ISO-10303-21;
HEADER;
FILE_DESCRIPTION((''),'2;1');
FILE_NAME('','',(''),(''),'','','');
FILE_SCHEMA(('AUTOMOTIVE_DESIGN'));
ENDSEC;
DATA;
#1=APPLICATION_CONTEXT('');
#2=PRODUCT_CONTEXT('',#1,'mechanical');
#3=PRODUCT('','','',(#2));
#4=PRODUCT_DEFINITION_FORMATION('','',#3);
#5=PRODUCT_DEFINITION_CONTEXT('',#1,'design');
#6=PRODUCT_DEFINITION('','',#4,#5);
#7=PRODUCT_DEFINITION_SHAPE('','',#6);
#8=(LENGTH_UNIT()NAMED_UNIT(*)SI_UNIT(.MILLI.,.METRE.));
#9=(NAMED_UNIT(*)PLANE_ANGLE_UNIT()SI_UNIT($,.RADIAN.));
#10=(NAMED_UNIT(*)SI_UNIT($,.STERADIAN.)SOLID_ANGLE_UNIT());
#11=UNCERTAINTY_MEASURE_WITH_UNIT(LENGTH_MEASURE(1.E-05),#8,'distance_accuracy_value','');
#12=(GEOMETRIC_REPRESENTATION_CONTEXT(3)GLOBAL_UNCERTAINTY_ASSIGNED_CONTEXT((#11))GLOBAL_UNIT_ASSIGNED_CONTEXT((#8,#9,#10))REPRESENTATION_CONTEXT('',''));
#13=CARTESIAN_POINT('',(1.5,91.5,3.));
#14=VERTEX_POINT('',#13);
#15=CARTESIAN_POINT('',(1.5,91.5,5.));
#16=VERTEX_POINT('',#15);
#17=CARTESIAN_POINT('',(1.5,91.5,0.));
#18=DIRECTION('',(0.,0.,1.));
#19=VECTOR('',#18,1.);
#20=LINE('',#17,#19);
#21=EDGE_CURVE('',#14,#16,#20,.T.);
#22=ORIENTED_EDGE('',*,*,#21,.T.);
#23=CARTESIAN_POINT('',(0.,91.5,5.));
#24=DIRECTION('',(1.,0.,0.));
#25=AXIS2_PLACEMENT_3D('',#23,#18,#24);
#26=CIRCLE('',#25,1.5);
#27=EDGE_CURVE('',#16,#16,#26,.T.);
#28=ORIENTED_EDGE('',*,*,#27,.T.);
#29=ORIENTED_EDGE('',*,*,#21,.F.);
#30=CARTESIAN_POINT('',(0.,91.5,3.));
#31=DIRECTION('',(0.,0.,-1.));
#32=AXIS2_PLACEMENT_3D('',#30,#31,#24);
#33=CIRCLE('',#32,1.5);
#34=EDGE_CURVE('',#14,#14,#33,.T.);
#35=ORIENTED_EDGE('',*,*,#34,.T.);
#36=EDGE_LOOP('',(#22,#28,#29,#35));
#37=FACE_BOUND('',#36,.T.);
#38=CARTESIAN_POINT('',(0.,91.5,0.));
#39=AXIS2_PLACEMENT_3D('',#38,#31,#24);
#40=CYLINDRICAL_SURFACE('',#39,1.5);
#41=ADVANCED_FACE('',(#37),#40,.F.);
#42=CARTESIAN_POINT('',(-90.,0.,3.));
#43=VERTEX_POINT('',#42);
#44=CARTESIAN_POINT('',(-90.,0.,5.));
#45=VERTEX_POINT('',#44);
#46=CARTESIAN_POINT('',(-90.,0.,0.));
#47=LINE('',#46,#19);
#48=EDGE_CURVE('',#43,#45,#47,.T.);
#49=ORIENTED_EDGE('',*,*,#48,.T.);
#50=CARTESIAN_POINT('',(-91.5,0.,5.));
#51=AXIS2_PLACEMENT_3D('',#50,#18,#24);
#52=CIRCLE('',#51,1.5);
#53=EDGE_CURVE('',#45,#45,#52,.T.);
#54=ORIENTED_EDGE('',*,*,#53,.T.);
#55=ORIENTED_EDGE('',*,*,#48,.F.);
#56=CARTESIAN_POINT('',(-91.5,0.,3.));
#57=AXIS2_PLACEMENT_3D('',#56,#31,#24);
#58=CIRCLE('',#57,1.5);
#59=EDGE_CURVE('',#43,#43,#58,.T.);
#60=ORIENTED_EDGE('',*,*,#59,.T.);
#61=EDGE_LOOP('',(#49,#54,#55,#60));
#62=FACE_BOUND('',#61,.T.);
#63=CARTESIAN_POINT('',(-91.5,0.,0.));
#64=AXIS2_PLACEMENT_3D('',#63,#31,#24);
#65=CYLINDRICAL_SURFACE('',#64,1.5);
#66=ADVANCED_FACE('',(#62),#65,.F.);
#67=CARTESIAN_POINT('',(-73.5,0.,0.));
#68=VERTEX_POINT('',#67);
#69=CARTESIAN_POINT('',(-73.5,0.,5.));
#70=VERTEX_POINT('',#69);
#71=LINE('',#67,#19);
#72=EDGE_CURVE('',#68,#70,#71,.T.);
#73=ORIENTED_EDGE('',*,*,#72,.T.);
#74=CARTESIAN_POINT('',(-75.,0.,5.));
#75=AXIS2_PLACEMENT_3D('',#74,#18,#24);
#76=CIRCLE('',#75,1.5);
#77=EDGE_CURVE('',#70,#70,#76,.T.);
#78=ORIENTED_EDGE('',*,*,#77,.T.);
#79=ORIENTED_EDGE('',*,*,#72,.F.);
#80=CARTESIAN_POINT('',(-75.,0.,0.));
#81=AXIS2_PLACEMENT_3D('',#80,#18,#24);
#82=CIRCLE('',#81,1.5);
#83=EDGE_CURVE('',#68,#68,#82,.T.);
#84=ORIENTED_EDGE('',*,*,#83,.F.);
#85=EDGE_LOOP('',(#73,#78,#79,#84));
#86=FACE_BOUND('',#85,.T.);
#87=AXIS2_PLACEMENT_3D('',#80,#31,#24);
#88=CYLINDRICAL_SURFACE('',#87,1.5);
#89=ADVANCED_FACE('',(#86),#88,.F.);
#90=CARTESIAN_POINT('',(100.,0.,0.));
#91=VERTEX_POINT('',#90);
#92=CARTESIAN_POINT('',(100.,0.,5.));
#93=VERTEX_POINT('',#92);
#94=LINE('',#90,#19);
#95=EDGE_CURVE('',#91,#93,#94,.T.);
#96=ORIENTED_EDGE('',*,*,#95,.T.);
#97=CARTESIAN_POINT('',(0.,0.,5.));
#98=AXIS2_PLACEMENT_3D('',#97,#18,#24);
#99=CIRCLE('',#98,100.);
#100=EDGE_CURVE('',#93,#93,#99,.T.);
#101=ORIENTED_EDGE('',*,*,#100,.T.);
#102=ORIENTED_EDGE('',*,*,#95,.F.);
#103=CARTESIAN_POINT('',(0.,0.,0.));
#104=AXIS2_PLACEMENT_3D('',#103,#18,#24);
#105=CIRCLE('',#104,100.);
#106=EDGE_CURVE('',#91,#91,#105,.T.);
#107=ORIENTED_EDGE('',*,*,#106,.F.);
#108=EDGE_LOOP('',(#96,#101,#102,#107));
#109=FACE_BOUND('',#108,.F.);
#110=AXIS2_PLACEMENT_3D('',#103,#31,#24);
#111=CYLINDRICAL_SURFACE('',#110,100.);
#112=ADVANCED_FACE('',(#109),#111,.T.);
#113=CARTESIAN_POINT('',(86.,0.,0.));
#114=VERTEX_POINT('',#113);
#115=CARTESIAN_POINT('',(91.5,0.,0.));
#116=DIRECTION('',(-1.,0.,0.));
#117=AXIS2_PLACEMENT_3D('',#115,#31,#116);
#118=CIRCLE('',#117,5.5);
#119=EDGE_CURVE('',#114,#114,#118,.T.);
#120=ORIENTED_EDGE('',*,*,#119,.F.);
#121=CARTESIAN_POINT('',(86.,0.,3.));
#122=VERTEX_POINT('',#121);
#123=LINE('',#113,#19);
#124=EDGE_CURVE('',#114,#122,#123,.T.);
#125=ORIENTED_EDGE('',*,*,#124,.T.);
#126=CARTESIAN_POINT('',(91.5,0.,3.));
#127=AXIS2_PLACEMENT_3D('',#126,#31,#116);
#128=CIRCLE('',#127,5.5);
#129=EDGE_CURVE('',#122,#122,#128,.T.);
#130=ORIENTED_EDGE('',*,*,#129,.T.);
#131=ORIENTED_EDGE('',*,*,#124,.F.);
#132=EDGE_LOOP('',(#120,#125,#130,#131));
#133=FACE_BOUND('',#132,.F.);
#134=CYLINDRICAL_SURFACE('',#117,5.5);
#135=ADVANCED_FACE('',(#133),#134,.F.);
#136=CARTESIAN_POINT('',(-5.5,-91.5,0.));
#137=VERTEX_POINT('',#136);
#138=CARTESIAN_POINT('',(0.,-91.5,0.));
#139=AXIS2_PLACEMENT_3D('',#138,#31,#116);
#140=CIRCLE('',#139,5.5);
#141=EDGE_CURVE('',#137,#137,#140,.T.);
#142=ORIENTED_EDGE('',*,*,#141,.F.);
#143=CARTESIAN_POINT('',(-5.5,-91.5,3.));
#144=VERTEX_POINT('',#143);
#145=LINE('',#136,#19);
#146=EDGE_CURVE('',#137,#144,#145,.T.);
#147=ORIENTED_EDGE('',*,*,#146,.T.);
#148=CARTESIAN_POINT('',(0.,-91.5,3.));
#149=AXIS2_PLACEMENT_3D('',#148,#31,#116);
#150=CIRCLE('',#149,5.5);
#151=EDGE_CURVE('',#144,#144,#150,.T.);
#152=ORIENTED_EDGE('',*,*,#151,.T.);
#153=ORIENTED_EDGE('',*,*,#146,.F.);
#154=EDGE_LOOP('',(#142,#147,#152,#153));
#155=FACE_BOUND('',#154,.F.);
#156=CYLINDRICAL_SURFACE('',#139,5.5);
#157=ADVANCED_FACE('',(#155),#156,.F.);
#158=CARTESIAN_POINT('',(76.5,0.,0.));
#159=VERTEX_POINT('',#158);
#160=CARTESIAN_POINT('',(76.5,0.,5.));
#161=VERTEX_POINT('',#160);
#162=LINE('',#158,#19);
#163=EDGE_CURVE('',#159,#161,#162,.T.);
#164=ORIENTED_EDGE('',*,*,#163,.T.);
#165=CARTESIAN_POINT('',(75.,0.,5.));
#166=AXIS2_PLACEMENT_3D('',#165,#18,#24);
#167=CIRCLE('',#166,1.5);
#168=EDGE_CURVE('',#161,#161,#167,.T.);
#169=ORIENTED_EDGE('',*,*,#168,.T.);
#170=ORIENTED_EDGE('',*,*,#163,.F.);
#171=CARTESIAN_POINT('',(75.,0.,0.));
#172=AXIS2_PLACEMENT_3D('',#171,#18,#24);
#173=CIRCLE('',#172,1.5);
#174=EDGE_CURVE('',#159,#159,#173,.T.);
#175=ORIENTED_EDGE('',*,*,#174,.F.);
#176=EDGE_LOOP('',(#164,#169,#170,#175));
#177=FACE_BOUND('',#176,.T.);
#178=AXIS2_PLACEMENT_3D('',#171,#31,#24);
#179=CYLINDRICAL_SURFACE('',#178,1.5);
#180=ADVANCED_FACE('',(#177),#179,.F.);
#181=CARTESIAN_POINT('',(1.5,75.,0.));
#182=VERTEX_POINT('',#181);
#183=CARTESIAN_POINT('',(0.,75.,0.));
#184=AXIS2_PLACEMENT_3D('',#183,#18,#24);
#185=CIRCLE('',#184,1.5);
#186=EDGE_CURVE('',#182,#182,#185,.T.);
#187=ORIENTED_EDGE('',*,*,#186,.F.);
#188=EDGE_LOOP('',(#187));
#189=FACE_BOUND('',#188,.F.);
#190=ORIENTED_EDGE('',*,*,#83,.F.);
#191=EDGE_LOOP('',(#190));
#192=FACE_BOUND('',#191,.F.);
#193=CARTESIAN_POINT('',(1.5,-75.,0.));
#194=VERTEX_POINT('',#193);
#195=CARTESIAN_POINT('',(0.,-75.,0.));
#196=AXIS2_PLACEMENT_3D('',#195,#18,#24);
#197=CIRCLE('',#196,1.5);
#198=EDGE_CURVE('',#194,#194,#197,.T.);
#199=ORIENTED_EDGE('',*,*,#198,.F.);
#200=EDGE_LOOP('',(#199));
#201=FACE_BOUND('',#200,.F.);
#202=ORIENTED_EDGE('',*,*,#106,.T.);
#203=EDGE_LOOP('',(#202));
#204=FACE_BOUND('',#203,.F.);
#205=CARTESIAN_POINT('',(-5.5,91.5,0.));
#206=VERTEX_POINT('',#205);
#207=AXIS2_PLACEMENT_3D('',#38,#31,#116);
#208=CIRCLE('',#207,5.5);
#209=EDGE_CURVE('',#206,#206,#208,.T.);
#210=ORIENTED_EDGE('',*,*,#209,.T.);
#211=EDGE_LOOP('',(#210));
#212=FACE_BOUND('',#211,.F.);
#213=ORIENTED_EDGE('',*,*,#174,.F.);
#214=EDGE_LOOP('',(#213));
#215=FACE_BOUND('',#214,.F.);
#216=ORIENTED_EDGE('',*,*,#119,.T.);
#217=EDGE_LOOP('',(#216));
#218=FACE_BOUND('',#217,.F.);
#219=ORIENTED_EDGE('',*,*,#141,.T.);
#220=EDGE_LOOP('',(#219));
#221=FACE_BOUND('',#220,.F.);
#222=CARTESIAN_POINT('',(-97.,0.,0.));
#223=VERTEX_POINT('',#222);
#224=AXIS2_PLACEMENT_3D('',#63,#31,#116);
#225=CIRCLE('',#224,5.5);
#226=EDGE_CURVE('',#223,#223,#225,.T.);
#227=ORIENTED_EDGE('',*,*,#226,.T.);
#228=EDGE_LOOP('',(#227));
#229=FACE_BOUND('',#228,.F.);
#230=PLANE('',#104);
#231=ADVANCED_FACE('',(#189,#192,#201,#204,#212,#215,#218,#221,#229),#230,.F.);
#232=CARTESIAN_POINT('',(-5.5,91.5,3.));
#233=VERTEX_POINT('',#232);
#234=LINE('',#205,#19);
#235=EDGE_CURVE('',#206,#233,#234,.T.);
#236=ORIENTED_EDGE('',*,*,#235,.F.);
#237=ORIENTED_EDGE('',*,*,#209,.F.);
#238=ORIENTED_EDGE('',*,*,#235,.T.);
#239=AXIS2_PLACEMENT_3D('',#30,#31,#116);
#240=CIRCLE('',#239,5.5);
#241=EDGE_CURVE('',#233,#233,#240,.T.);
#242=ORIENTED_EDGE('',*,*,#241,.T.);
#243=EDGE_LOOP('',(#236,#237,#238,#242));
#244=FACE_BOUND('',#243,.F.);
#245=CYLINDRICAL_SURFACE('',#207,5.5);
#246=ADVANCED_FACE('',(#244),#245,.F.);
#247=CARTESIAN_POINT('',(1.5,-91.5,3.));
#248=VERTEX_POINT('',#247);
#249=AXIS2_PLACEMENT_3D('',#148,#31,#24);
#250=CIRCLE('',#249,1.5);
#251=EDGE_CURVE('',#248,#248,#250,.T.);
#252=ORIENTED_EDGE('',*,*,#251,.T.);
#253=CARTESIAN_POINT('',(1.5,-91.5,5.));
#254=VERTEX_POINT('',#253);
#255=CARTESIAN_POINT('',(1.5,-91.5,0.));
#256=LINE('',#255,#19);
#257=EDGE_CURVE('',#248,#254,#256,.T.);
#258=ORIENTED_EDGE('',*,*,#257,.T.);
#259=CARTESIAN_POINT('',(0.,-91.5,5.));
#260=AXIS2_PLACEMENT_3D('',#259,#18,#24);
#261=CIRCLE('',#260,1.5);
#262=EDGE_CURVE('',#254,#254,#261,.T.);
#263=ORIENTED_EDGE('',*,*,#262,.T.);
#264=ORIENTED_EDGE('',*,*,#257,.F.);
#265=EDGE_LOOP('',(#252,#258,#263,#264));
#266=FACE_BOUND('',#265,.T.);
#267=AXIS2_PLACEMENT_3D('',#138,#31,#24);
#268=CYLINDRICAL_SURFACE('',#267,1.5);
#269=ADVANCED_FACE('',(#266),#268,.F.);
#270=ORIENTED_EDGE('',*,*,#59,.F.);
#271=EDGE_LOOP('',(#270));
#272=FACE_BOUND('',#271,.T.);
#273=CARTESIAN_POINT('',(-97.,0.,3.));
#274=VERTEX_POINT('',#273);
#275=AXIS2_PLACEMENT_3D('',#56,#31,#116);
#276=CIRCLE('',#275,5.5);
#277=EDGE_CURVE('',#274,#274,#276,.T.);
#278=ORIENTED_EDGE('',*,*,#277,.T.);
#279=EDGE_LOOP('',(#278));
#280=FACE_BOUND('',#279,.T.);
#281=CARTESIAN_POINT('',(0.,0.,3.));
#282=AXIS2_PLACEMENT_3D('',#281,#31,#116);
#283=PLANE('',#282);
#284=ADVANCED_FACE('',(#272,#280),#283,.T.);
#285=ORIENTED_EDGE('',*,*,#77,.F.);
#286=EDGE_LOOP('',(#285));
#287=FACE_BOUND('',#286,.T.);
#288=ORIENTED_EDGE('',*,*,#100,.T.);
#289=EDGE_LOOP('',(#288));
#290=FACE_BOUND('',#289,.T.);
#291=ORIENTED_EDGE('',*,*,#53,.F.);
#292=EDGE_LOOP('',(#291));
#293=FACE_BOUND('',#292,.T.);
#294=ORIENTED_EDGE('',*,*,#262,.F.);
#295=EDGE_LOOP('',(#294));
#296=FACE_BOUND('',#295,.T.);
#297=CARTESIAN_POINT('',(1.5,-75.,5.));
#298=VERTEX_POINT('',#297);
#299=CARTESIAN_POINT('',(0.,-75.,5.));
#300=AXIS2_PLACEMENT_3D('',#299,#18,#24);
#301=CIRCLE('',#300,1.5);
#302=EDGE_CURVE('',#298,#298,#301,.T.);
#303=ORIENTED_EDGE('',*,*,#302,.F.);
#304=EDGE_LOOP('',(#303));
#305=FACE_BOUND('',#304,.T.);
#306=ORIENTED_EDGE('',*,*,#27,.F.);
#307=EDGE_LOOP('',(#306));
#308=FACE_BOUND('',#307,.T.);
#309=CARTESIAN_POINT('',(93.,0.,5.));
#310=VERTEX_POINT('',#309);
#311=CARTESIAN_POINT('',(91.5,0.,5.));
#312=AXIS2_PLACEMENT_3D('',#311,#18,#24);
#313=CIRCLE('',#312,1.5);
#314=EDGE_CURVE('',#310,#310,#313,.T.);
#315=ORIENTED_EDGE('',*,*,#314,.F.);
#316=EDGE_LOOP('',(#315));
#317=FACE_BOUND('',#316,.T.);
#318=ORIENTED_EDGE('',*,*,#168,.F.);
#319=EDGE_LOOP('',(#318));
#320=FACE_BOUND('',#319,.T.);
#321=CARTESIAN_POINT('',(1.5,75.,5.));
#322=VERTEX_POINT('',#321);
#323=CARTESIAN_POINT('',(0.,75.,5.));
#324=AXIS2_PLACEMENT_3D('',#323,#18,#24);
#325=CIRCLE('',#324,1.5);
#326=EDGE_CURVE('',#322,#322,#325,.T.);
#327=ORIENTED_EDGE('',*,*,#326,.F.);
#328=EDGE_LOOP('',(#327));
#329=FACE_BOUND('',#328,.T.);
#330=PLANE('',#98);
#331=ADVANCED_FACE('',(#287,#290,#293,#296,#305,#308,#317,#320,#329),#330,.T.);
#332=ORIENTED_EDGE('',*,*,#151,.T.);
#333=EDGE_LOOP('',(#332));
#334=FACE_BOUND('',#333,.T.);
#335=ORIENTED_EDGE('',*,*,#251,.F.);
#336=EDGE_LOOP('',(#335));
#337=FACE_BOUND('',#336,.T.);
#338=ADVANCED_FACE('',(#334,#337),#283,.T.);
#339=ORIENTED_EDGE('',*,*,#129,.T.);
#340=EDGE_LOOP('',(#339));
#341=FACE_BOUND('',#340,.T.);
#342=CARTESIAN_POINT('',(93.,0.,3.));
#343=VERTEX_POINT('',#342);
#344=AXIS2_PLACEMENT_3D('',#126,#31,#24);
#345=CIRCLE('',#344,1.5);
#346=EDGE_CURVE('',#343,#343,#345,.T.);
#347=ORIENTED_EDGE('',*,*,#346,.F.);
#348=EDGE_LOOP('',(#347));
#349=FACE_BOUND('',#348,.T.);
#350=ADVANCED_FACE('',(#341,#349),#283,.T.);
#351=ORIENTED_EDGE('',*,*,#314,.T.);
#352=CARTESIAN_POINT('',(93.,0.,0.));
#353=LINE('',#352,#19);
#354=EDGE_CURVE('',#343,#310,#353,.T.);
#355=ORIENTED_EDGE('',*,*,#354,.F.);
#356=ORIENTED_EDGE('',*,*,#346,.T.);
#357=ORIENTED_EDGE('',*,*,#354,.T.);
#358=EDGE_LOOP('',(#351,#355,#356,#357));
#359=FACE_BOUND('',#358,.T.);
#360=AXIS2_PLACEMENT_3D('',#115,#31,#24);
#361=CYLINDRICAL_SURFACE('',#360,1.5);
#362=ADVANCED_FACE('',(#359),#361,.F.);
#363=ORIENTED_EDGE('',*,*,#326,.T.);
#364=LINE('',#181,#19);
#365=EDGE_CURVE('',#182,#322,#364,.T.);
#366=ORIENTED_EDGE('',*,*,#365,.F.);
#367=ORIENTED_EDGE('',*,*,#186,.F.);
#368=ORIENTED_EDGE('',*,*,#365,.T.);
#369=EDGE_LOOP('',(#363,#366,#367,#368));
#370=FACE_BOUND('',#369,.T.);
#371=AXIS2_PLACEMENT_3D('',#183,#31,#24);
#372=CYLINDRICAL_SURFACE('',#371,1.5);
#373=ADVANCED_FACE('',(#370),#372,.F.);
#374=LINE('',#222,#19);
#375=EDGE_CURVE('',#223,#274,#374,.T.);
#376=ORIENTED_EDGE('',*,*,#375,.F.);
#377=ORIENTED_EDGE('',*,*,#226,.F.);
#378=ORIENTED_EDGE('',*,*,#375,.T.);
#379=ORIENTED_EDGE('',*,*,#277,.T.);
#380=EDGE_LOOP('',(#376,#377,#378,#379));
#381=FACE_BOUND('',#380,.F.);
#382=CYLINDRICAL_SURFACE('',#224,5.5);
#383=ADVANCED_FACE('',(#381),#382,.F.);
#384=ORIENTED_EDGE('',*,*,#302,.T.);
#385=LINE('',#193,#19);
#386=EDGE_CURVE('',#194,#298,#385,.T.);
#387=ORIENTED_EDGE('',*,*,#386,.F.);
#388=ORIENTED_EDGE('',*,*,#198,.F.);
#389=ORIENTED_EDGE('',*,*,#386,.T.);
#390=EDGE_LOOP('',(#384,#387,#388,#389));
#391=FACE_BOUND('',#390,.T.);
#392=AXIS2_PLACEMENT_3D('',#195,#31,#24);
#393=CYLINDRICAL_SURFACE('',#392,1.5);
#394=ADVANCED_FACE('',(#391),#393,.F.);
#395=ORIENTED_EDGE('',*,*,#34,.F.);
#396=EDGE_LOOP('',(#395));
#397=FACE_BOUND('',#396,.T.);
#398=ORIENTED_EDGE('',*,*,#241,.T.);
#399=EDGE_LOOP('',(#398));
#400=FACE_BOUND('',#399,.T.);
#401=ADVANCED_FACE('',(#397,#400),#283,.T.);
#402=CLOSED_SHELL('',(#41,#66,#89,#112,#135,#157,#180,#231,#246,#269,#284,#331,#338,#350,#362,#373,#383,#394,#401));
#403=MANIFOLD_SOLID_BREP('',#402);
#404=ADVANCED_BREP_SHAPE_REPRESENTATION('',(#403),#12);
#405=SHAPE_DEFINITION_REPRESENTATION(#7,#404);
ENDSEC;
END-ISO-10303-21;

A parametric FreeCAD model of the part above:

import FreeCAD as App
import Part
import Sketcher
Q = App.Units.Quantity

doc = App.newDocument("Part")
params = doc.addObject("Spreadsheet::Sheet", "Params")
for row, (alias, value) in enumerate([
    ("sketch1_diameter", "200 mm"),
    ("sketch1_diameter2", "3 mm"),
    ("pad1_length", "5 mm"),
    ("sketch2_diameter", "11 mm"),
    ("pocket1_length", "3 mm"),
], start=1):
    params.set(f"A{row}", alias)
    params.set(f"B{row}", "=" + value)
    params.setAlias(f"B{row}", alias)

body = doc.addObject("PartDesign::Body", "Body")

sketch1 = doc.addObject("Sketcher::SketchObject", "Sketch")
body.addObject(sketch1)
sketch1.AttachmentSupport = (doc.XY_Plane, [""])
sketch1.MapMode = "FlatFace"
sketch1.addGeometry([
    Part.Circle(App.Vector(0, 0, 0), App.Vector(0, 0, 1), 100),
    Part.Circle(App.Vector(0, -91.5, 0), App.Vector(0, 0, 1), 1.5),
    Part.Circle(App.Vector(0, -75, 0), App.Vector(0, 0, 1), 1.5),
    Part.Circle(App.Vector(-91.5, 0, 0), App.Vector(0, 0, 1), 1.5),
    Part.Circle(App.Vector(-75, 0, 0), App.Vector(0, 0, 1), 1.5),
    Part.Circle(App.Vector(75, 0, 0), App.Vector(0, 0, 1), 1.5),
    Part.Circle(App.Vector(91.5, 0, 0), App.Vector(0, 0, 1), 1.5),
    Part.Circle(App.Vector(0, 75, 0), App.Vector(0, 0, 1), 1.5),
    Part.Circle(App.Vector(0, 91.5, 0), App.Vector(0, 0, 1), 1.5),
], False)
sketch1.addConstraint([
    Sketcher.Constraint("Coincident", 0, 3, -1, 1),
    Sketcher.Constraint("Equal", 1, 2),
    Sketcher.Constraint("Equal", 2, 3),
    Sketcher.Constraint("Equal", 3, 4),
    Sketcher.Constraint("Equal", 4, 5),
    Sketcher.Constraint("Equal", 5, 6),
    Sketcher.Constraint("Equal", 6, 7),
    Sketcher.Constraint("Equal", 7, 8),
    Sketcher.Constraint("Symmetric", 4, 3, 5, 3, -1, 1),
    Sketcher.Constraint("Symmetric", 3, 3, 6, 3, -1, 1),
    Sketcher.Constraint("Symmetric", 2, 3, 7, 3, -1, 1),
    Sketcher.Constraint("Symmetric", 1, 3, 8, 3, -1, 1),
    Sketcher.Constraint("PointOnObject", 1, 3, -2),
    Sketcher.Constraint("PointOnObject", 2, 3, -2),
    Sketcher.Constraint("PointOnObject", 3, 3, -1),
    Sketcher.Constraint("PointOnObject", 4, 3, -1),
    Sketcher.Constraint("Diameter", 0, Q("200 mm")),
    Sketcher.Constraint("Diameter", 1, Q("3 mm")),
    Sketcher.Constraint("DistanceY", 2, 3, -1, 1, Q("75 mm")),
    Sketcher.Constraint("DistanceX", 4, 3, -1, 1, Q("75 mm")),
    Sketcher.Constraint("DistanceY", 1, 3, -1, 1, Q("91.5 mm")),
    Sketcher.Constraint("DistanceX", 3, 3, -1, 1, Q("91.5 mm")),
])
sketch1.setExpression("Constraints[16]", "Params.sketch1_diameter")
sketch1.setExpression("Constraints[17]", "Params.sketch1_diameter2")
pad1 = doc.addObject("PartDesign::Pad", "Pad")
body.addObject(pad1)
pad1.Profile = sketch1
pad1.setExpression("Length", "Params.pad1_length")

sketch2 = doc.addObject("Sketcher::SketchObject", "Sketch001")
body.addObject(sketch2)
sketch2.AttachmentSupport = (doc.XY_Plane, [""])
sketch2.MapMode = "FlatFace"
sketch2.addGeometry([
    Part.Circle(App.Vector(-91.5, 0, 0), App.Vector(0, 0, 1), 5.5),
    Part.Circle(App.Vector(0, -91.5, 0), App.Vector(0, 0, 1), 5.5),
    Part.Circle(App.Vector(0, 91.5, 0), App.Vector(0, 0, 1), 5.5),
    Part.Circle(App.Vector(91.5, 0, 0), App.Vector(0, 0, 1), 5.5),
], False)
sketch2.addConstraint([
    Sketcher.Constraint("Equal", 0, 1),
    Sketcher.Constraint("Equal", 1, 2),
    Sketcher.Constraint("Equal", 2, 3),
    Sketcher.Constraint("Symmetric", 1, 3, 2, 3, -1, 1),
    Sketcher.Constraint("Symmetric", 0, 3, 3, 3, -1, 1),
    Sketcher.Constraint("PointOnObject", 0, 3, -1),
    Sketcher.Constraint("PointOnObject", 1, 3, -2),
    Sketcher.Constraint("Diameter", 0, Q("11 mm")),
    Sketcher.Constraint("DistanceY", 1, 3, 2, 3, Q("183 mm")),
    Sketcher.Constraint("DistanceX", 0, 3, 3, 3, Q("183 mm")),
])
sketch2.setExpression("Constraints[7]", "Params.sketch2_diameter")
pocket1 = doc.addObject("PartDesign::Pocket", "Pocket")
body.addObject(pocket1)
pocket1.Profile = sketch2
pocket1.setExpression("Length", "Params.pocket1_length")
pocket1.Reversed = True

doc.recompute()
